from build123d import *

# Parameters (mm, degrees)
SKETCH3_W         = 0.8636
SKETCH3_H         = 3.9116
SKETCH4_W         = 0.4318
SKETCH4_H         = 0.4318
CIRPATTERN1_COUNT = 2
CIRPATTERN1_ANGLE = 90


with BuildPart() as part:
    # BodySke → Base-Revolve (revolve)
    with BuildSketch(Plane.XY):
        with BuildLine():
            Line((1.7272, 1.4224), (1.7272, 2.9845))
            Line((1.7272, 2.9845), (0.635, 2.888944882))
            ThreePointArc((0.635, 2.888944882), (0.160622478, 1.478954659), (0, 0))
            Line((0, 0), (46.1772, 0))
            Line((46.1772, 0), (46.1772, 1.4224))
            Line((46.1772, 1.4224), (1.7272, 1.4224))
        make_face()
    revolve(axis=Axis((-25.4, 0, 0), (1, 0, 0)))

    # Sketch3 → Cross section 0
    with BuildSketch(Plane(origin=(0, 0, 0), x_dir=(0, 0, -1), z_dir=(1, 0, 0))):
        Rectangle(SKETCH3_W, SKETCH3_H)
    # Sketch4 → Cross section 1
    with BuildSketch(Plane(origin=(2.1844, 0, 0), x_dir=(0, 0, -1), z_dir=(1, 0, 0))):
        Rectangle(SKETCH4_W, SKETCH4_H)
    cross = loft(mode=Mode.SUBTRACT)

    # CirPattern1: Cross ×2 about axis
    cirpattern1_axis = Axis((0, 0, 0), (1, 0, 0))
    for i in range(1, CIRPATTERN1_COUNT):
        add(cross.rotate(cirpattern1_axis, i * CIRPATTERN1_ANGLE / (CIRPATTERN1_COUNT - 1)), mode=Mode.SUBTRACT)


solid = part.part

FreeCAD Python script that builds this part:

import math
import FreeCAD as App
import Part
import Sketcher
Q = App.Units.Quantity

doc = App.newDocument("Part")
body = doc.addObject("PartDesign::Body", "Body")

# Sketch on XY plane
sketch1 = body.newObject("Sketcher::SketchObject", "Sketch")
sketch1.AttachmentSupport = (doc.getObject("XY_Plane"), [""])
sketch1.MapMode = "FlatFace"
sketch1.addGeometry(Part.LineSegment(App.Vector(1.7, 1.4, 0), App.Vector(1.7, 3, 0)), False)
sketch1.addGeometry(Part.LineSegment(App.Vector(1.7, 3, 0), App.Vector(0.6, 2.9, 0)), False)
sketch1.addGeometry(Part.ArcOfCircle(Part.Circle(App.Vector(6.9, 0, 0), App.Vector(0, 0, 1), 6.9), math.radians(155), math.radians(180)), False)
sketch1.addGeometry(Part.LineSegment(App.Vector(0, 0, 0), App.Vector(46.2, 0, 0)), False)
sketch1.addGeometry(Part.LineSegment(App.Vector(46.2, 0, 0), App.Vector(46.2, 1.4, 0)), False)
sketch1.addGeometry(Part.LineSegment(App.Vector(46.2, 1.4, 0), App.Vector(1.7, 1.4, 0)), False)
sketch1.addConstraint(Sketcher.Constraint("Coincident", 0, 2, 1, 1))
sketch1.addConstraint(Sketcher.Constraint("Coincident", 1, 2, 2, 1))
sketch1.addConstraint(Sketcher.Constraint("Coincident", 2, 2, 3, 1))
sketch1.addConstraint(Sketcher.Constraint("Coincident", 3, 2, 4, 1))
sketch1.addConstraint(Sketcher.Constraint("Coincident", 4, 2, 5, 1))
sketch1.addConstraint(Sketcher.Constraint("Coincident", 5, 2, 0, 1))
sketch1.addConstraint(Sketcher.Constraint("Vertical", 0))
sketch1.addConstraint(Sketcher.Constraint("Horizontal", 3))
sketch1.addConstraint(Sketcher.Constraint("Vertical", 4))
sketch1.addConstraint(Sketcher.Constraint("Horizontal", 5))
sketch1.addConstraint(Sketcher.Constraint("Coincident", 2, 2, -1, 1))
sketch1.addConstraint(Sketcher.Constraint("PointOnObject", 2, 3, -1))
sketch1.addConstraint(Sketcher.Constraint("Angle", 1, Q("-175 deg")))
sketch1.addConstraint(Sketcher.Constraint("DistanceX", 5, 2, 5, 1, Q("1.75 in")))
sketch1.addConstraint(Sketcher.Constraint("DistanceX", 3, 1, 3, 2, Q("1.818 in")))
sketch1.addConstraint(Sketcher.Constraint("DistanceY", 4, 1, 4, 2, Q("0.056 in")))
sketch1.addConstraint(Sketcher.Constraint("DistanceY", 0, 1, 0, 2, Q("0.0615 in")))
sketch1.addConstraint(Sketcher.Constraint("DistanceX", -1, 1, 1, 2, Q("0.025 in")))
revolution = body.newObject("PartDesign::Revolution", "Revolution")
revolution.Profile = sketch1
revolution.ReferenceAxis = (sketch1, ["H_Axis"])
revolution.Angle = 360

# Sketch on YZ plane
sketch2 = body.newObject("Sketcher::SketchObject", "Sketch001")
sketch2.AttachmentSupport = (doc.getObject("YZ_Plane"), [""])
sketch2.MapMode = "FlatFace"
sketch2.addGeometry(Part.LineSegment(App.Vector(2, 0.4, 0), App.Vector(-2, 0.4, 0)), False)
sketch2.addGeometry(Part.LineSegment(App.Vector(-2, 0.4, 0), App.Vector(-2, -0.4, 0)), False)
sketch2.addGeometry(Part.LineSegment(App.Vector(-2, -0.4, 0), App.Vector(2, -0.4, 0)), False)
sketch2.addGeometry(Part.LineSegment(App.Vector(2, -0.4, 0), App.Vector(2, 0.4, 0)), False)
sketch2.addConstraint(Sketcher.Constraint("Coincident", 0, 2, 1, 1))
sketch2.addConstraint(Sketcher.Constraint("Coincident", 1, 2, 2, 1))
sketch2.addConstraint(Sketcher.Constraint("Coincident", 2, 2, 3, 1))
sketch2.addConstraint(Sketcher.Constraint("Coincident", 3, 2, 0, 1))
sketch2.addConstraint(Sketcher.Constraint("Horizontal", 0))
sketch2.addConstraint(Sketcher.Constraint("Vertical", 1))
sketch2.addConstraint(Sketcher.Constraint("Horizontal", 2))
sketch2.addConstraint(Sketcher.Constraint("Vertical", 3))
sketch2.addConstraint(Sketcher.Constraint("Symmetric", 0, 2, 2, 2, -1, 1))
sketch2.addConstraint(Sketcher.Constraint("DistanceX", 0, 2, 0, 1, Q("0.154 in")))
sketch2.addConstraint(Sketcher.Constraint("DistanceY", 1, 2, 1, 1, Q("0.034 in")))

# Sketch on YZ plane
sketch3 = body.newObject("Sketcher::SketchObject", "Sketch002")
sketch3.AttachmentSupport = (doc.getObject("YZ_Plane"), [""])
sketch3.MapMode = "FlatFace"
sketch3.AttachmentOffset = App.Placement(App.Vector(0, 0, 0.086 * 25.4), App.Rotation())
sketch3.addGeometry(Part.LineSegment(App.Vector(0.22, 0.22, 0), App.Vector(-0.22, 0.22, 0)), False)
sketch3.addGeometry(Part.LineSegment(App.Vector(-0.22, 0.22, 0), App.Vector(-0.22, -0.22, 0)), False)
sketch3.addGeometry(Part.LineSegment(App.Vector(-0.22, -0.22, 0), App.Vector(0.22, -0.22, 0)), False)
sketch3.addGeometry(Part.LineSegment(App.Vector(0.22, -0.22, 0), App.Vector(0.22, 0.22, 0)), False)
sketch3.addConstraint(Sketcher.Constraint("Coincident", 0, 2, 1, 1))
sketch3.addConstraint(Sketcher.Constraint("Coincident", 1, 2, 2, 1))
sketch3.addConstraint(Sketcher.Constraint("Coincident", 2, 2, 3, 1))
sketch3.addConstraint(Sketcher.Constraint("Coincident", 3, 2, 0, 1))
sketch3.addConstraint(Sketcher.Constraint("Horizontal", 0))
sketch3.addConstraint(Sketcher.Constraint("Vertical", 1))
sketch3.addConstraint(Sketcher.Constraint("Horizontal", 2))
sketch3.addConstraint(Sketcher.Constraint("Vertical", 3))
sketch3.addConstraint(Sketcher.Constraint("Symmetric", 0, 2, 2, 2, -1, 1))
sketch3.addConstraint(Sketcher.Constraint("Equal", 2, 1))
sketch3.addConstraint(Sketcher.Constraint("DistanceX", 0, 2, 0, 1, Q("0.017 in")))

subtractiveloft = body.newObject("PartDesign::SubtractiveLoft", "SubtractiveLoft")
subtractiveloft.Profile = sketch2
subtractiveloft.Sections = [sketch3]
doc.recompute()

polarpattern = body.newObject("PartDesign::PolarPattern", "PolarPattern")
polarpattern.Originals = [subtractiveloft]
polarpattern.Axis = (doc.getObject("X_Axis"), [""])
polarpattern.Angle = 90
polarpattern.Occurrences = 2
body.Tip = polarpattern

doc.recompute()
